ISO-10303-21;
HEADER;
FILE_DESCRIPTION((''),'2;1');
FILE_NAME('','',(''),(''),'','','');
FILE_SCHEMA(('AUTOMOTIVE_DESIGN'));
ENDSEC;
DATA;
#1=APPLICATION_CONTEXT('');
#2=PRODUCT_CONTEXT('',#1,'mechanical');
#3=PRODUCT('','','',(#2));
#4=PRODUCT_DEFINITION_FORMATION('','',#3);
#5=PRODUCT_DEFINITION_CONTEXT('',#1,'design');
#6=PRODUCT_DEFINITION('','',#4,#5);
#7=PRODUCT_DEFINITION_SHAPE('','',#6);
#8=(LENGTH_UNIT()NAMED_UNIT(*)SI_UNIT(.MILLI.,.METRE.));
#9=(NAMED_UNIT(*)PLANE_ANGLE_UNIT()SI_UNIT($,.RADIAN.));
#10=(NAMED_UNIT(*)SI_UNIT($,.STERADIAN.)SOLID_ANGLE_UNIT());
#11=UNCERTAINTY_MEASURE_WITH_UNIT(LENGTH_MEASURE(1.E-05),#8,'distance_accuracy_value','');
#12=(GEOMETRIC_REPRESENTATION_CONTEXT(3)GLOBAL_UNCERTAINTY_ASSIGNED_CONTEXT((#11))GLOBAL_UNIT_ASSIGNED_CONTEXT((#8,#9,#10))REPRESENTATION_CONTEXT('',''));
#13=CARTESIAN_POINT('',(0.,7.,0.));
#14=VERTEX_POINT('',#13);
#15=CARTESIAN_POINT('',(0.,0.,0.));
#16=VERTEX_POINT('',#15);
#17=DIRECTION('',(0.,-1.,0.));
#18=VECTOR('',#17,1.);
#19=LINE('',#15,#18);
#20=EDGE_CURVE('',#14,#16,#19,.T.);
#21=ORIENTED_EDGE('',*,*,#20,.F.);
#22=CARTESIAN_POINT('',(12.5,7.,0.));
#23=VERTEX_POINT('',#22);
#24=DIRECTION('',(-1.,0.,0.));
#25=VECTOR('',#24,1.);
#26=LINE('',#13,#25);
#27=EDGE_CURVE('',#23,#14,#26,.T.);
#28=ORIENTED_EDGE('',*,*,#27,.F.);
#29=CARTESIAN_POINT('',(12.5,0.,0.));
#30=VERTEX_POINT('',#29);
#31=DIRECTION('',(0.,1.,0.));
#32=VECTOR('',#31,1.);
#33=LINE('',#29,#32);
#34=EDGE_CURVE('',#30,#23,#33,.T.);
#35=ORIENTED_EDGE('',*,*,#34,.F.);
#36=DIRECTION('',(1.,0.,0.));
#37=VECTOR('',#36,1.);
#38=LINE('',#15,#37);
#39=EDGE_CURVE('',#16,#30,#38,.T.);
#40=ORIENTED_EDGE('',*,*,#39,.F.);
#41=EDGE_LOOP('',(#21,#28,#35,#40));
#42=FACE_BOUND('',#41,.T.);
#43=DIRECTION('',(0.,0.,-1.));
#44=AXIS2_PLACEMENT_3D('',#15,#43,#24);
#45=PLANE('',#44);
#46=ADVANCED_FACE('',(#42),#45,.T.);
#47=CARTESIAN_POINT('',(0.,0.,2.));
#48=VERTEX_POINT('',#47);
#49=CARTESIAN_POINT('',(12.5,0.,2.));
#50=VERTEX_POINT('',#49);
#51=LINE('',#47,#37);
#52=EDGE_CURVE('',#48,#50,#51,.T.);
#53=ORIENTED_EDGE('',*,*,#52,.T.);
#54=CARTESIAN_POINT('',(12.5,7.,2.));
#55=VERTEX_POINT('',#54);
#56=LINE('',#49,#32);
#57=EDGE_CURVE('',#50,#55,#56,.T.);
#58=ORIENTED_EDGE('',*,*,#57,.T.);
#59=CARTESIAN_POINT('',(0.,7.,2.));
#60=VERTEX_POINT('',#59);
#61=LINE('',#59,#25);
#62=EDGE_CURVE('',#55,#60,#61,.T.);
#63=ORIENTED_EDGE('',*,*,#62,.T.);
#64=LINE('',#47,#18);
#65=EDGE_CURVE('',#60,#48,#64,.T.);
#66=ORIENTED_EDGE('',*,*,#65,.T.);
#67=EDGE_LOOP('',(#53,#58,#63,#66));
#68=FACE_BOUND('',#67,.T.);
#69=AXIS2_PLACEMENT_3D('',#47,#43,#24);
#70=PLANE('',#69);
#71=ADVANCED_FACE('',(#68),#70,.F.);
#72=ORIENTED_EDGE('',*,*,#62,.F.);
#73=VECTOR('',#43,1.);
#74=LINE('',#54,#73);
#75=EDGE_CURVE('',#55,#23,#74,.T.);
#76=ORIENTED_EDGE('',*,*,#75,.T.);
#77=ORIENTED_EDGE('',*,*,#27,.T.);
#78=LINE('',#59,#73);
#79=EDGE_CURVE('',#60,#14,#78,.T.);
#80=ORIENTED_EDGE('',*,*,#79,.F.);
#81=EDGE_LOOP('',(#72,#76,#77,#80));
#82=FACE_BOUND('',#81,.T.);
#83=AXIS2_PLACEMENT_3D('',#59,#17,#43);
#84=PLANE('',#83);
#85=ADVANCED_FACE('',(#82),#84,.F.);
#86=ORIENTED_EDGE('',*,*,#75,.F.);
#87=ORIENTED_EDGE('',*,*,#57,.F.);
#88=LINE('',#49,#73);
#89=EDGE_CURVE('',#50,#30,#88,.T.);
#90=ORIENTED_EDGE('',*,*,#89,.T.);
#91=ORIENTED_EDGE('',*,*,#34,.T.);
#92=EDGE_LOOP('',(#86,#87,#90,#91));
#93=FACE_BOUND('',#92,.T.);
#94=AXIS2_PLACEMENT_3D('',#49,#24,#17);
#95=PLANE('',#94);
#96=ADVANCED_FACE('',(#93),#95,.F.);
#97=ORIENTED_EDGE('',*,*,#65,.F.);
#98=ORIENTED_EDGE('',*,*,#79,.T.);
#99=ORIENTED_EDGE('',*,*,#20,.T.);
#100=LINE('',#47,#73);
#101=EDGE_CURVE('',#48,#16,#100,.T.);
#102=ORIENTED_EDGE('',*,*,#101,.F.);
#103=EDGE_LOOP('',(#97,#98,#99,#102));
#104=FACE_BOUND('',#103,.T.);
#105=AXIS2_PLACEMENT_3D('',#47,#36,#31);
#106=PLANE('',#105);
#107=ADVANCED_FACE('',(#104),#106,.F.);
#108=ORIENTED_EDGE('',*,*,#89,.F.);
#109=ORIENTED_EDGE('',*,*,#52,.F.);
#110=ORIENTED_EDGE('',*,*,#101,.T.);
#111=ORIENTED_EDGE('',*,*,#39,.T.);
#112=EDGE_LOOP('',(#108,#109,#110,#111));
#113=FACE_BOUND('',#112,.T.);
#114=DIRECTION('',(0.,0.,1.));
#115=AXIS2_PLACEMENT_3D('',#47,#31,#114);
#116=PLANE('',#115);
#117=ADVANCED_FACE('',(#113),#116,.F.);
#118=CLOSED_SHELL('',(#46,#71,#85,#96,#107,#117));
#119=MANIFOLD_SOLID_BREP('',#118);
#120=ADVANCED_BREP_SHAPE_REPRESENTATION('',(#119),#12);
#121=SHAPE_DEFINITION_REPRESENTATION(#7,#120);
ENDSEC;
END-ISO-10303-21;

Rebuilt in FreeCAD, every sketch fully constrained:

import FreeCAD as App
import Part
import Sketcher

V = App.Vector


def add_polygon(sketch, points):
    """Adds a closed chain of lines whose ends are joined by coincident constraints."""
    first, n = sketch.GeometryCount, len(points)
    for a, b in zip(points, points[1:] + points[:1]):
        sketch.addGeometry(Part.LineSegment(App.Vector(*a, 0), App.Vector(*b, 0)), False)
    for i in range(n):
        sketch.addConstraint(Sketcher.Constraint("Coincident", first + i, 2, first + (i + 1) % n, 1))

doc = App.newDocument("Part")
body = doc.addObject("PartDesign::Body", "Body")

sketch1 = doc.addObject("Sketcher::SketchObject", "Sketch")
body.addObject(sketch1)
sketch1.AttachmentSupport = (doc.XY_Plane, [""])
sketch1.MapMode = "FlatFace"
add_polygon(sketch1, [(0, 7), (0, 0), (12, 0), (12, 7)])
sketch1.addConstraint(Sketcher.Constraint("Vertical", 0))
sketch1.addConstraint(Sketcher.Constraint("Horizontal", 1))
sketch1.addConstraint(Sketcher.Constraint("Vertical", 2))
sketch1.addConstraint(Sketcher.Constraint("Horizontal", 3))
sketch1.addConstraint(Sketcher.Constraint("Coincident", 0, 2, -1, 1))
sketch1.addConstraint(Sketcher.Constraint("DistanceY", 0, 2, 0, 1, 7.0))
sketch1.addConstraint(Sketcher.Constraint("DistanceX", 1, 1, 1, 2, 12.5))
pad1 = doc.addObject("PartDesign::Pad", "Pad")
body.addObject(pad1)
pad1.Profile = sketch1
pad1.Length = 2

doc.recompute()
